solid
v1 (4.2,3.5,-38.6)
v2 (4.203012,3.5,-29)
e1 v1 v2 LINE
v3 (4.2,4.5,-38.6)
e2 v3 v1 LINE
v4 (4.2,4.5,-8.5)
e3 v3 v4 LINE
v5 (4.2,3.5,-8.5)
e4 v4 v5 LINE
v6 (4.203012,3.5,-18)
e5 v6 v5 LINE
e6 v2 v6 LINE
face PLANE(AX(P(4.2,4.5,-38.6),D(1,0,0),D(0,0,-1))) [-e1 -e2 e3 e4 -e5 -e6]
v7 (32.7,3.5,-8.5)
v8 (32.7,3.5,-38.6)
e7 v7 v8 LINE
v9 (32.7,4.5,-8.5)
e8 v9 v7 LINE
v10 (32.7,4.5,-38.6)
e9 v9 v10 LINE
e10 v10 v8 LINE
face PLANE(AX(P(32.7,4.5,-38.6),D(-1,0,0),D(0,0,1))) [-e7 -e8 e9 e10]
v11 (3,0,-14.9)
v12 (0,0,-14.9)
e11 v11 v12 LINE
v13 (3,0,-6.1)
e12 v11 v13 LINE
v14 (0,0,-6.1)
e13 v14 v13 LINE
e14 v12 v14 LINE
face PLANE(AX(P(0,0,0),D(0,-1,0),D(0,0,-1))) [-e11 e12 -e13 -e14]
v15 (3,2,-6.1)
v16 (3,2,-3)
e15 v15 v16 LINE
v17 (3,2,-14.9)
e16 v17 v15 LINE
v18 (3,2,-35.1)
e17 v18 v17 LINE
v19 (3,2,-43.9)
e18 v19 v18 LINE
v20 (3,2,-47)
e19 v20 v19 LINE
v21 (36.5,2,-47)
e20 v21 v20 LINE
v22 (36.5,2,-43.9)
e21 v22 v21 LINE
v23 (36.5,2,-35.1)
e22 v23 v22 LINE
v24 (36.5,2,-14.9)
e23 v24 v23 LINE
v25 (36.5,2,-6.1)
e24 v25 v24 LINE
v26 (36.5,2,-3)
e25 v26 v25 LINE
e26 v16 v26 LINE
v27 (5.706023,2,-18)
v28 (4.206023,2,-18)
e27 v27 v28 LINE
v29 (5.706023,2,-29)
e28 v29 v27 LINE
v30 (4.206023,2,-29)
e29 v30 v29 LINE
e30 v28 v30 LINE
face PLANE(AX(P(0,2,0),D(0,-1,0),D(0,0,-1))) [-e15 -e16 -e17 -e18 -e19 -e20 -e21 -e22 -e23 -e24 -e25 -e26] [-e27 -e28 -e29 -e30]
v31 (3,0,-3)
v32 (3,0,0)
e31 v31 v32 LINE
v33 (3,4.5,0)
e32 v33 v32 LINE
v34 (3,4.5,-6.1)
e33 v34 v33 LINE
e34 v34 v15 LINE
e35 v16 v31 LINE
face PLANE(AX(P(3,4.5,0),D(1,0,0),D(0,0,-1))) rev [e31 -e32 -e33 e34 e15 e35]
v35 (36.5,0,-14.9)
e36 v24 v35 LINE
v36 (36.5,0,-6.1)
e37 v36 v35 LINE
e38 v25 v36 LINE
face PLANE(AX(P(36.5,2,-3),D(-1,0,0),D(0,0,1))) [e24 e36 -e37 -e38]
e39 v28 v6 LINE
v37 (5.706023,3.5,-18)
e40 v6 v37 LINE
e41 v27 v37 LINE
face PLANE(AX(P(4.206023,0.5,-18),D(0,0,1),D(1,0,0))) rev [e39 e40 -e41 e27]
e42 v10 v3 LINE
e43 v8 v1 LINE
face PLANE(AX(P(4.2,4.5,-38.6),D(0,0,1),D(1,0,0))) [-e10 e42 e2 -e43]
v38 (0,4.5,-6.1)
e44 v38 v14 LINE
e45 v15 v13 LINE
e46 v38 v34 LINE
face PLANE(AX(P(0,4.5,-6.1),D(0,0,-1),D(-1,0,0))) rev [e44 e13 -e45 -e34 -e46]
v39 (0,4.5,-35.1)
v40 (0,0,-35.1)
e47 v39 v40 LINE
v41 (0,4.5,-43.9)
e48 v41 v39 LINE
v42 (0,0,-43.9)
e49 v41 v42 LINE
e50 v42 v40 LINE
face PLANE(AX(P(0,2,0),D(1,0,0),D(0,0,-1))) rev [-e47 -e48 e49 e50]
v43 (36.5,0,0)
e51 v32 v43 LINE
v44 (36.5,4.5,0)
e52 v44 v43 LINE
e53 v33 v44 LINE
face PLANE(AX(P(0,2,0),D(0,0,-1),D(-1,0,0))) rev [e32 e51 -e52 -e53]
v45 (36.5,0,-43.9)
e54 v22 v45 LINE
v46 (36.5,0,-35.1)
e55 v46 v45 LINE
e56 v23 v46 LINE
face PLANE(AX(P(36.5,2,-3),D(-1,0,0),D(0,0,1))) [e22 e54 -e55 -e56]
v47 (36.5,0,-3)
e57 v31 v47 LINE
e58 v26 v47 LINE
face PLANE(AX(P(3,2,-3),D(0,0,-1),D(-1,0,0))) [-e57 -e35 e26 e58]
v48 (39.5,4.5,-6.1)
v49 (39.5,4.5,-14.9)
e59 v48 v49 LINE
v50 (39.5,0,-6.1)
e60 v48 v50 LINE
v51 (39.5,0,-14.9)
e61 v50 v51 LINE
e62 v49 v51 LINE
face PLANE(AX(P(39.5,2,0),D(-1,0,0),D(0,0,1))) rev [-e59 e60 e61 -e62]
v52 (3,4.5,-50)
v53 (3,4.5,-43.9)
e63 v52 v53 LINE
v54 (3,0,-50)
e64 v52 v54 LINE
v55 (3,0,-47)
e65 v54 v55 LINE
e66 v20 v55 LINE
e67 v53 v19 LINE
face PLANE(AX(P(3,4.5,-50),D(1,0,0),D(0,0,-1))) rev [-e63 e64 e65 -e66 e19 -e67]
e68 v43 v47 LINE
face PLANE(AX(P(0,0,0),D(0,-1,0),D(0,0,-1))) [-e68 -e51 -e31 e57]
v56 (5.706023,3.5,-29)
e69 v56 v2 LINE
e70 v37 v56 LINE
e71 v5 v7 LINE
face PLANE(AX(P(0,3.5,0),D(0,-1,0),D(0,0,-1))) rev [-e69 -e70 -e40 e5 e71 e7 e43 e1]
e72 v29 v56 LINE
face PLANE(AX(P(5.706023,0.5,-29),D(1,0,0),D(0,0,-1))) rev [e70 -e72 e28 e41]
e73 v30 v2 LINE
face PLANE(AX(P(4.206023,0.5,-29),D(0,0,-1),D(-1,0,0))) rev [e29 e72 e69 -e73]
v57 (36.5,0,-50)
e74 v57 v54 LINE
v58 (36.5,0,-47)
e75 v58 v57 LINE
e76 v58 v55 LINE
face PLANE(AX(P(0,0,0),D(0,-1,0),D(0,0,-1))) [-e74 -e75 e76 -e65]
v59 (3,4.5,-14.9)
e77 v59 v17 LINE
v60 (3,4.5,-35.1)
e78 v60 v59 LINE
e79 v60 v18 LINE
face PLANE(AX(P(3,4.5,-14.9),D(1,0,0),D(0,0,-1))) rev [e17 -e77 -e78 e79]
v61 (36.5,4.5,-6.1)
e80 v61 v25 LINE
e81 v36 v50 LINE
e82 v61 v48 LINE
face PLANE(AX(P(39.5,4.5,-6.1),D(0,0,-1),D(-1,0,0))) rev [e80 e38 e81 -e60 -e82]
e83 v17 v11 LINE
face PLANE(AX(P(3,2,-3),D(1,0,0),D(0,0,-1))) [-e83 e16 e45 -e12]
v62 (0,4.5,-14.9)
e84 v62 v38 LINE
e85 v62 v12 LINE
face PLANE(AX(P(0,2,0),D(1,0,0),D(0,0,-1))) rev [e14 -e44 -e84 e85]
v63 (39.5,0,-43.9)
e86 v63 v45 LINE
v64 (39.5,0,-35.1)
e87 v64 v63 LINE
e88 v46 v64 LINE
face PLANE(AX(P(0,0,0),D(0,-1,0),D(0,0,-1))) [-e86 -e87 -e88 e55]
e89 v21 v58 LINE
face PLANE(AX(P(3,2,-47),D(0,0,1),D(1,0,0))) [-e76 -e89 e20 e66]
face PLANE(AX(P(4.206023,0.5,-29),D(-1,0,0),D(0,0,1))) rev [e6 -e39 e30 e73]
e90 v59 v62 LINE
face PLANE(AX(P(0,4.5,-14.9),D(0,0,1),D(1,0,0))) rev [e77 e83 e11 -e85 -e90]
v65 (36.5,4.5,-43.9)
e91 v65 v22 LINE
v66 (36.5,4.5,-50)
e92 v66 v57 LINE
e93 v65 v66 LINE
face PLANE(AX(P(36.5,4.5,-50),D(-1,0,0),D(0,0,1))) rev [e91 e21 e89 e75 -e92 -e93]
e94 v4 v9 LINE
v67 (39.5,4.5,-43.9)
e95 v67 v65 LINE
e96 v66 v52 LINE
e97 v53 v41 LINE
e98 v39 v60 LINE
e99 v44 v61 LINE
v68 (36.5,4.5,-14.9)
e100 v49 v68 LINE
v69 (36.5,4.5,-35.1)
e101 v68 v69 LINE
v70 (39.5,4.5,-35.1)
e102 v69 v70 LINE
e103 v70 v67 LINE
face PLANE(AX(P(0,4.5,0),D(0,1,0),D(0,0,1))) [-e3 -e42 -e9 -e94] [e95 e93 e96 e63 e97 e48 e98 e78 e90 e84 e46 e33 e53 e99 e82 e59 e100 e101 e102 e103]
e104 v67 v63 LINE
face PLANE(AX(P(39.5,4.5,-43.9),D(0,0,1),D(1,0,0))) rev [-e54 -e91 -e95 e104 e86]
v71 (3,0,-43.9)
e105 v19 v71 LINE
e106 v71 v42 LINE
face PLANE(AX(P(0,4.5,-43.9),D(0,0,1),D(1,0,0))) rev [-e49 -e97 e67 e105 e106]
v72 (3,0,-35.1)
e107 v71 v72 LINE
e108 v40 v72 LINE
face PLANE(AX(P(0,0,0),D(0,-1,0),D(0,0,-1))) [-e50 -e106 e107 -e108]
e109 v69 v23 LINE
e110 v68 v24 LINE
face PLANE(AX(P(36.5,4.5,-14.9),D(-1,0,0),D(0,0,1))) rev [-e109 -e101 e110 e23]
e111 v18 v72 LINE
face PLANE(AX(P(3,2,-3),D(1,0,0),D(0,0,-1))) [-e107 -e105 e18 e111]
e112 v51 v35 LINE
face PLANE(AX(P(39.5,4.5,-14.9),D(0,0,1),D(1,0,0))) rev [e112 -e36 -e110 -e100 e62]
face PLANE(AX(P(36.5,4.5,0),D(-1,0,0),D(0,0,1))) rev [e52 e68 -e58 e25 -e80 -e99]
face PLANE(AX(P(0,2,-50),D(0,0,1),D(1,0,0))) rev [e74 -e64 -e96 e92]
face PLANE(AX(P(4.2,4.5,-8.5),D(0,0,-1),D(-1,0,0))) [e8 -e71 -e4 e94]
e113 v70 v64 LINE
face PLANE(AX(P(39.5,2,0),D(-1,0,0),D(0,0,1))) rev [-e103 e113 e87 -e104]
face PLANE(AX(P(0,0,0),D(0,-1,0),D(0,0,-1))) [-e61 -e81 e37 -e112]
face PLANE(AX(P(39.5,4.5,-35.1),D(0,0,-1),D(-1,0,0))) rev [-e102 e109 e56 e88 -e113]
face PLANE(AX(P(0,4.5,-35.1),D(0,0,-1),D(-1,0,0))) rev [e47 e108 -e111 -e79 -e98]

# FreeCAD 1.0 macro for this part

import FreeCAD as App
import Part
import Sketcher
Q = App.Units.Quantity

doc = App.newDocument("Part")
body = doc.addObject("PartDesign::Body", "Body")

# Sketch on XZ plane
sketch1 = body.newObject("Sketcher::SketchObject", "Sketch")
sketch1.AttachmentSupport = (doc.getObject("XZ_Plane"), [""])
sketch1.MapMode = "FlatFace"
sketch1.addGeometry([
    Part.LineSegment(App.Vector(0, -50, 0), App.Vector(0, 0, 0)),  # 0
    Part.LineSegment(App.Vector(0, 0, 0), App.Vector(40, 0, 0)),  # 1
    Part.LineSegment(App.Vector(40, 0, 0), App.Vector(40, -50, 0)),  # 2
    Part.LineSegment(App.Vector(40, -50, 0), App.Vector(0, -50, 0)),  # 3
    Part.LineSegment(App.Vector(36, -3, 0), App.Vector(3, -3, 0)),  # 4
    Part.LineSegment(App.Vector(3, -3, 0), App.Vector(3, -47, 0)),  # 5
    Part.LineSegment(App.Vector(3, -47, 0), App.Vector(36, -47, 0)),  # 6
    Part.LineSegment(App.Vector(36, -47, 0), App.Vector(36, -3, 0)),  # 7
], False)
sketch1.addConstraint([
    Sketcher.Constraint("Coincident", 0, 2, 1, 1),
    Sketcher.Constraint("Coincident", 1, 2, 2, 1),
    Sketcher.Constraint("Coincident", 2, 2, 3, 1),
    Sketcher.Constraint("Coincident", 3, 2, 0, 1),
    Sketcher.Constraint("Coincident", 4, 2, 5, 1),
    Sketcher.Constraint("Coincident", 5, 2, 6, 1),
    Sketcher.Constraint("Coincident", 6, 2, 7, 1),
    Sketcher.Constraint("Coincident", 7, 2, 4, 1),
    Sketcher.Constraint("Vertical", 0),
    Sketcher.Constraint("Horizontal", 1),
    Sketcher.Constraint("Vertical", 2),
    Sketcher.Constraint("Horizontal", 3),
    Sketcher.Constraint("Horizontal", 4),
    Sketcher.Constraint("Vertical", 5),
    Sketcher.Constraint("Horizontal", 6),
    Sketcher.Constraint("Vertical", 7),
    Sketcher.Constraint("Coincident", 0, 2, -1, 1),
    Sketcher.Constraint("DistanceY", 0, 1, 0, 2, Q("50 mm")),
    Sketcher.Constraint("DistanceY", 5, 2, 5, 1, Q("44 mm")),
    Sketcher.Constraint("DistanceX", 1, 1, 1, 2, Q("39.5 mm")),
    Sketcher.Constraint("DistanceX", 4, 2, 4, 1, Q("33.5 mm")),
    Sketcher.Constraint("DistanceX", -1, 1, 4, 2, Q("3 mm")),
    Sketcher.Constraint("DistanceY", 4, 2, -1, 1, Q("3 mm")),
])
pad1 = body.newObject("PartDesign::Pad", "Pad")
pad1.Profile = sketch1
pad1.Length = 2
pad1.Reversed = True

# Sketch on XZ plane
sketch2 = body.newObject("Sketcher::SketchObject", "Sketch001")
sketch2.AttachmentSupport = (doc.getObject("XZ_Plane"), [""])
sketch2.MapMode = "FlatFace"
sketch2.AttachmentOffset = App.Placement(App.Vector(0, 0, -2), App.Rotation())
sketch2.addGeometry([
    Part.LineSegment(App.Vector(0, -50, 0), App.Vector(0, 0, 0)),
    Part.LineSegment(App.Vector(0, 0, 0), App.Vector(40, 0, 0)),
    Part.LineSegment(App.Vector(40, 0, 0), App.Vector(40, -50, 0)),
    Part.LineSegment(App.Vector(40, -50, 0), App.Vector(0, -50, 0)),
], False)
sketch2.addConstraint([
    Sketcher.Constraint("Coincident", 0, 2, 1, 1),
    Sketcher.Constraint("Coincident", 1, 2, 2, 1),
    Sketcher.Constraint("Coincident", 2, 2, 3, 1),
    Sketcher.Constraint("Coincident", 3, 2, 0, 1),
    Sketcher.Constraint("Vertical", 0),
    Sketcher.Constraint("Horizontal", 1),
    Sketcher.Constraint("Vertical", 2),
    Sketcher.Constraint("Horizontal", 3),
    Sketcher.Constraint("Coincident", 0, 2, -1, 1),
    Sketcher.Constraint("DistanceY", 0, 1, 0, 2, Q("50 mm")),
    Sketcher.Constraint("DistanceX", 1, 1, 1, 2, Q("39.5 mm")),
])
pad2 = body.newObject("PartDesign::Pad", "Pad001")
pad2.Profile = sketch2
pad2.Length = 1.5
pad2.Reversed = True

# Sketch on XZ plane
sketch3 = body.newObject("Sketcher::SketchObject", "Sketch002")
sketch3.AttachmentSupport = (doc.getObject("XZ_Plane"), [""])
sketch3.MapMode = "FlatFace"
sketch3.AttachmentOffset = App.Placement(App.Vector(0, 0, -3.5), App.Rotation())
sketch3.addGeometry([
    Part.LineSegment(App.Vector(4.2, -29, 0), App.Vector(4.2, -18, 0)),
    Part.LineSegment(App.Vector(4.2, -18, 0), App.Vector(5.7, -18, 0)),
    Part.LineSegment(App.Vector(5.7, -18, 0), App.Vector(5.7, -29, 0)),
    Part.LineSegment(App.Vector(5.7, -29, 0), App.Vector(4.2, -29, 0)),
], False)
sketch3.addConstraint([
    Sketcher.Constraint("Coincident", 0, 2, 1, 1),
    Sketcher.Constraint("Coincident", 1, 2, 2, 1),
    Sketcher.Constraint("Coincident", 2, 2, 3, 1),
    Sketcher.Constraint("Coincident", 3, 2, 0, 1),
    Sketcher.Constraint("Vertical", 0),
    Sketcher.Constraint("Horizontal", 1),
    Sketcher.Constraint("Vertical", 2),
    Sketcher.Constraint("Horizontal", 3),
    Sketcher.Constraint("DistanceY", 0, 1, 0, 2, Q("11 mm")),
    Sketcher.Constraint("DistanceX", 1, 1, 1, 2, Q("1.5 mm")),
    Sketcher.Constraint("DistanceY", 0, 2, -1, 1, Q("18 mm")),
    Sketcher.Constraint("DistanceX", -1, 1, 0, 2, Q("4.206023 mm")),
])
pocket1 = body.newObject("PartDesign::Pocket", "Pocket")
pocket1.Profile = sketch3
pocket1.Length = 3
pocket1.Reversed = True

# Sketch on XZ plane
sketch4 = body.newObject("Sketcher::SketchObject", "Sketch003")
sketch4.AttachmentSupport = (doc.getObject("XZ_Plane"), [""])
sketch4.MapMode = "FlatFace"
sketch4.AttachmentOffset = App.Placement(App.Vector(0, 0, -3.5), App.Rotation())
sketch4.addGeometry([
    Part.LineSegment(App.Vector(0, -50, 0), App.Vector(0, 0, 0)),  # 0
    Part.LineSegment(App.Vector(0, 0, 0), App.Vector(40, 0, 0)),  # 1
    Part.LineSegment(App.Vector(40, 0, 0), App.Vector(40, -50, 0)),  # 2
    Part.LineSegment(App.Vector(40, -50, 0), App.Vector(0, -50, 0)),  # 3
    Part.LineSegment(App.Vector(33, -8, 0), App.Vector(4, -8, 0)),  # 4
    Part.LineSegment(App.Vector(4, -8, 0), App.Vector(4, -39, 0)),  # 5
    Part.LineSegment(App.Vector(4, -39, 0), App.Vector(33, -39, 0)),  # 6
    Part.LineSegment(App.Vector(33, -39, 0), App.Vector(33, -8, 0)),  # 7
], False)
sketch4.addConstraint([
    Sketcher.Constraint("Coincident", 0, 2, 1, 1),
    Sketcher.Constraint("Coincident", 1, 2, 2, 1),
    Sketcher.Constraint("Coincident", 2, 2, 3, 1),
    Sketcher.Constraint("Coincident", 3, 2, 0, 1),
    Sketcher.Constraint("Coincident", 4, 2, 5, 1),
    Sketcher.Constraint("Coincident", 5, 2, 6, 1),
    Sketcher.Constraint("Coincident", 6, 2, 7, 1),
    Sketcher.Constraint("Coincident", 7, 2, 4, 1),
    Sketcher.Constraint("Vertical", 0),
    Sketcher.Constraint("Horizontal", 1),
    Sketcher.Constraint("Vertical", 2),
    Sketcher.Constraint("Horizontal", 3),
    Sketcher.Constraint("Horizontal", 4),
    Sketcher.Constraint("Vertical", 5),
    Sketcher.Constraint("Horizontal", 6),
    Sketcher.Constraint("Vertical", 7),
    Sketcher.Constraint("Coincident", 0, 2, -1, 1),
    Sketcher.Constraint("DistanceY", 0, 1, 0, 2, Q("50 mm")),
    Sketcher.Constraint("DistanceX", 1, 1, 1, 2, Q("39.5 mm")),
    Sketcher.Constraint("DistanceX", 4, 2, 4, 1, Q("28.5 mm")),
    Sketcher.Constraint("DistanceY", 5, 2, 5, 1, Q("30.1 mm")),
    Sketcher.Constraint("DistanceX", -1, 1, 4, 2, Q("4.2 mm")),
    Sketcher.Constraint("DistanceY", 4, 2, -1, 1, Q("8.5 mm")),
])
pad3 = body.newObject("PartDesign::Pad", "Pad002")
pad3.Profile = sketch4
pad3.Length = 1
pad3.Reversed = True

# Sketch on XZ plane
sketch5 = body.newObject("Sketcher::SketchObject", "Sketch004")
sketch5.AttachmentSupport = (doc.getObject("XZ_Plane"), [""])
sketch5.MapMode = "FlatFace"
sketch5.addGeometry([
    Part.LineSegment(App.Vector(0, 0, 0), App.Vector(0, -6.1, 0)),  # 0
    Part.LineSegment(App.Vector(0, -6.1, 0), App.Vector(3, -6.1, 0)),  # 1
    Part.LineSegment(App.Vector(3, -6.1, 0), App.Vector(3, 0, 0)),  # 2
    Part.LineSegment(App.Vector(3, 0, 0), App.Vector(0, 0, 0)),  # 3
    Part.LineSegment(App.Vector(0, -14.9, 0), App.Vector(0, -35.1, 0)),  # 4
    Part.LineSegment(App.Vector(0, -35.1, 0), App.Vector(3, -35.1, 0)),  # 5
    Part.LineSegment(App.Vector(3, -35.1, 0), App.Vector(3, -14.9, 0)),  # 6
    Part.LineSegment(App.Vector(3, -14.9, 0), App.Vector(0, -14.9, 0)),  # 7
    Part.LineSegment(App.Vector(0, -43.9, 0), App.Vector(0, -50, 0)),  # 8
    Part.LineSegment(App.Vector(0, -50, 0), App.Vector(3, -50, 0)),  # 9
    Part.LineSegment(App.Vector(3, -50, 0), App.Vector(3, -43.9, 0)),  # 10
    Part.LineSegment(App.Vector(3, -43.9, 0), App.Vector(0, -43.9, 0)),  # 11
    Part.LineSegment(App.Vector(36.5, 0, 0), App.Vector(36.5, -6.1, 0)),  # 12
    Part.LineSegment(App.Vector(36.5, -6.1, 0), App.Vector(39.5, -6.1, 0)),  # 13
    Part.LineSegment(App.Vector(39.5, -6.1, 0), App.Vector(39.5, 0, 0)),  # 14
    Part.LineSegment(App.Vector(39.5, 0, 0), App.Vector(36.5, 0, 0)),  # 15
    Part.LineSegment(App.Vector(36.5, -14.9, 0), App.Vector(36.5, -35.1, 0)),  # 16
    Part.LineSegment(App.Vector(36.5, -35.1, 0), App.Vector(39.5, -35.1, 0)),  # 17
    Part.LineSegment(App.Vector(39.5, -35.1, 0), App.Vector(39.5, -14.9, 0)),  # 18
    Part.LineSegment(App.Vector(39.5, -14.9, 0), App.Vector(36.5, -14.9, 0)),  # 19
    Part.LineSegment(App.Vector(36.5, -43.9, 0), App.Vector(36.5, -50, 0)),  # 20
    Part.LineSegment(App.Vector(36.5, -50, 0), App.Vector(39.5, -50, 0)),  # 21
    Part.LineSegment(App.Vector(39.5, -50, 0), App.Vector(39.5, -43.9, 0)),  # 22
    Part.LineSegment(App.Vector(39.5, -43.9, 0), App.Vector(36.5, -43.9, 0)),  # 23
], False)
sketch5.addConstraint([
    Sketcher.Constraint("Coincident", 0, 2, 1, 1),
    Sketcher.Constraint("Coincident", 1, 2, 2, 1),
    Sketcher.Constraint("Coincident", 2, 2, 3, 1),
    Sketcher.Constraint("Coincident", 3, 2, 0, 1),
    Sketcher.Constraint("Coincident", 4, 2, 5, 1),
    Sketcher.Constraint("Coincident", 5, 2, 6, 1),
    Sketcher.Constraint("Coincident", 6, 2, 7, 1),
    Sketcher.Constraint("Coincident", 7, 2, 4, 1),
    Sketcher.Constraint("Coincident", 8, 2, 9, 1),
    Sketcher.Constraint("Coincident", 9, 2, 10, 1),
    Sketcher.Constraint("Coincident", 10, 2, 11, 1),
    Sketcher.Constraint("Coincident", 11, 2, 8, 1),
    Sketcher.Constraint("Coincident", 12, 2, 13, 1),
    Sketcher.Constraint("Coincident", 13, 2, 14, 1),
    Sketcher.Constraint("Coincident", 14, 2, 15, 1),
    Sketcher.Constraint("Coincident", 15, 2, 12, 1),
    Sketcher.Constraint("Coincident", 16, 2, 17, 1),
    Sketcher.Constraint("Coincident", 17, 2, 18, 1),
    Sketcher.Constraint("Coincident", 18, 2, 19, 1),
    Sketcher.Constraint("Coincident", 19, 2, 16, 1),
    Sketcher.Constraint("Coincident", 20, 2, 21, 1),
    Sketcher.Constraint("Coincident", 21, 2, 22, 1),
    Sketcher.Constraint("Coincident", 22, 2, 23, 1),
    Sketcher.Constraint("Coincident", 23, 2, 20, 1),
    Sketcher.Constraint("Vertical", 0),
    Sketcher.Constraint("Horizontal", 1),
    Sketcher.Constraint("Vertical", 2),
    Sketcher.Constraint("Horizontal", 3),
    Sketcher.Constraint("Vertical", 4),
    Sketcher.Constraint("Horizontal", 5),
    Sketcher.Constraint("Vertical", 6),
    Sketcher.Constraint("Horizontal", 7),
    Sketcher.Constraint("Vertical", 8),
    Sketcher.Constraint("Horizontal", 9),
    Sketcher.Constraint("Vertical", 10),
    Sketcher.Constraint("Horizontal", 11),
    Sketcher.Constraint("Vertical", 12),
    Sketcher.Constraint("Horizontal", 13),
    Sketcher.Constraint("Vertical", 14),
    Sketcher.Constraint("Horizontal", 15),
    Sketcher.Constraint("Vertical", 16),
    Sketcher.Constraint("Horizontal", 17),
    Sketcher.Constraint("Vertical", 18),
    Sketcher.Constraint("Horizontal", 19),
    Sketcher.Constraint("Vertical", 20),
    Sketcher.Constraint("Horizontal", 21),
    Sketcher.Constraint("Vertical", 22),
    Sketcher.Constraint("Horizontal", 23),
    Sketcher.Constraint("Coincident", 3, 2, -1, 1),
    Sketcher.Constraint("PointOnObject", 4, 2, -2),
    Sketcher.Constraint("PointOnObject", 8, 2, -2),
    Sketcher.Constraint("PointOnObject", 14, 2, -1),
    Sketcher.Constraint("Horizontal", 1, 2, 12, 2),
    Sketcher.Constraint("Horizontal", 5, 2, 16, 2),
    Sketcher.Constraint("Horizontal", 7, 2, 18, 2),
    Sketcher.Constraint("Horizontal", 9, 2, 20, 2),
    Sketcher.Constraint("Horizontal", 11, 2, 22, 2),
    Sketcher.Constraint("Vertical", 2, 2, 5, 2),
    Sketcher.Constraint("Vertical", 6, 2, 9, 2),
    Sketcher.Constraint("Vertical", 15, 2, 16, 2),
    Sketcher.Constraint("Vertical", 14, 2, 17, 2),
    Sketcher.Constraint("Vertical", 19, 2, 20, 2),
    Sketcher.Constraint("Vertical", 18, 2, 21, 2),
    Sketcher.Constraint("Equal", 11, 13),
    Sketcher.Constraint("Equal", 2, 8),
    Sketcher.Constraint("DistanceX", 1, 1, 1, 2, Q("3 mm")),
    Sketcher.Constraint("DistanceY", 0, 2, 0, 1, Q("6.1 mm")),
    Sketcher.Constraint("DistanceY", 4, 2, 4, 1, Q("20.2 mm")),
    Sketcher.Constraint("DistanceY", 8, 2, -1, 1, Q("50 mm")),
    Sketcher.Constraint("DistanceY", 4, 2, 0, 2, Q("29 mm")),
    Sketcher.Constraint("DistanceX", -1, 1, 12, 2, Q("36.5 mm")),
])
pocket2 = body.newObject("PartDesign::Pocket", "Pocket001")
pocket2.Profile = sketch5
pocket2.Length = 4.5

doc.recompute()
